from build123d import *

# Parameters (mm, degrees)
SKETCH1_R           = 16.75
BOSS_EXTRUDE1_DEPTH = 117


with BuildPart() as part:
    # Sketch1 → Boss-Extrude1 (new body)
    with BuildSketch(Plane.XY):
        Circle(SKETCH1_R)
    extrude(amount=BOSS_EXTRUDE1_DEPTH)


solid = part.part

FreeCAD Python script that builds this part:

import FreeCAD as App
import Part
import Sketcher
from FreeCAD import Vector
Q = App.Units.Quantity

doc = App.newDocument("Part")
body = doc.addObject("PartDesign::Body", "Body")

# Sketch on XY plane
sketch1 = doc.addObject("Sketcher::SketchObject", "Sketch")
body.addObject(sketch1)
sketch1.AttachmentSupport = (doc.XY_Plane, [""])
sketch1.MapMode = "FlatFace"
sketch1.addGeometry(Part.Circle(Vector(0, 0, 0), Vector(0, 0, 1), 17), False)
sketch1.addConstraint(Sketcher.Constraint("Coincident", 0, 3, -1, 1))
sketch1.addConstraint(Sketcher.Constraint("Diameter", 0, Q("33.5 mm")))
pad1 = doc.addObject("PartDesign::Pad", "Pad")
body.addObject(pad1)
pad1.Profile = sketch1
pad1.Length = 117

doc.recompute()
